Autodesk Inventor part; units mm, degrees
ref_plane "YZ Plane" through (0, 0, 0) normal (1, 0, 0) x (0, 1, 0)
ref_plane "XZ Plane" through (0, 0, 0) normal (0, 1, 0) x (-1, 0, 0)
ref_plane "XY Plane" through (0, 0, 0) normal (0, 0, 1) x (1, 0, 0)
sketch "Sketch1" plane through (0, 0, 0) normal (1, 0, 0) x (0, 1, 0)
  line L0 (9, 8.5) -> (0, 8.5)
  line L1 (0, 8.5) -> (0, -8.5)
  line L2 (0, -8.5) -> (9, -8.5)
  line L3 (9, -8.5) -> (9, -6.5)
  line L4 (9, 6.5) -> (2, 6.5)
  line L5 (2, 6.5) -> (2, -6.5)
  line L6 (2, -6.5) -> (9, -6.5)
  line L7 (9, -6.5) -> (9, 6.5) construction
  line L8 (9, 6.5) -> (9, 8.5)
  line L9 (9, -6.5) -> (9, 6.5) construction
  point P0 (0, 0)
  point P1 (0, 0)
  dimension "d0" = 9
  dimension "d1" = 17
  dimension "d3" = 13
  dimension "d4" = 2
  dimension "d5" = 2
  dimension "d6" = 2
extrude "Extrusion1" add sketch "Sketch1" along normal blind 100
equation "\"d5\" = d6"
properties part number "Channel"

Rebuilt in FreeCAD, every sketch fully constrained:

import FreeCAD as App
import Part
import Sketcher
from FreeCAD import Vector
Q = App.Units.Quantity


def add_polygon(sketch, points):
    """Adds a closed chain of lines whose ends are joined by coincident constraints."""
    first, n = sketch.GeometryCount, len(points)
    for a, b in zip(points, points[1:] + points[:1]):
        sketch.addGeometry(Part.LineSegment(App.Vector(*a, 0), App.Vector(*b, 0)), False)
    for i in range(n):
        sketch.addConstraint(Sketcher.Constraint("Coincident", first + i, 2, first + (i + 1) % n, 1))

doc = App.newDocument("Part")
body = doc.addObject("PartDesign::Body", "Body")

sketch1 = body.newObject("Sketcher::SketchObject", "Sketch")
sketch1.AttachmentSupport = (doc.getObject("YZ_Plane"), [""])
sketch1.MapMode = "FlatFace"
add_polygon(sketch1, [(9, 6.5), (9, 8.5), (0, 8.5), (0, -8.5), (9, -8.5), (9, -6.5), (2, -6.5), (2, 6.5)])
sketch1.addConstraint([
    Sketcher.Constraint("Vertical", 0),
    Sketcher.Constraint("Horizontal", 1),
    Sketcher.Constraint("Vertical", 2),
    Sketcher.Constraint("Horizontal", 3),
    Sketcher.Constraint("Vertical", 4),
    Sketcher.Constraint("Horizontal", 5),
    Sketcher.Constraint("Vertical", 6),
    Sketcher.Constraint("Horizontal", 7),
    Sketcher.Constraint("Symmetric", 1, 2, 2, 2, -1, 1),
    Sketcher.Constraint("Symmetric", 4, 2, 7, 2, -1),
    Sketcher.Constraint("DistanceX", 1, 2, 1, 1, Q("9 mm")),
    Sketcher.Constraint("DistanceY", 0, 1, 0, 2, Q("2 mm")),
    Sketcher.Constraint("DistanceY", 2, 2, 2, 1, Q("17 mm")),
    Sketcher.Constraint("DistanceX", -1, 1, 5, 2, Q("2 mm")),
])
pad1 = body.newObject("PartDesign::Pad", "Pad")
pad1.Profile = sketch1
pad1.Length = 100

doc.recompute()
